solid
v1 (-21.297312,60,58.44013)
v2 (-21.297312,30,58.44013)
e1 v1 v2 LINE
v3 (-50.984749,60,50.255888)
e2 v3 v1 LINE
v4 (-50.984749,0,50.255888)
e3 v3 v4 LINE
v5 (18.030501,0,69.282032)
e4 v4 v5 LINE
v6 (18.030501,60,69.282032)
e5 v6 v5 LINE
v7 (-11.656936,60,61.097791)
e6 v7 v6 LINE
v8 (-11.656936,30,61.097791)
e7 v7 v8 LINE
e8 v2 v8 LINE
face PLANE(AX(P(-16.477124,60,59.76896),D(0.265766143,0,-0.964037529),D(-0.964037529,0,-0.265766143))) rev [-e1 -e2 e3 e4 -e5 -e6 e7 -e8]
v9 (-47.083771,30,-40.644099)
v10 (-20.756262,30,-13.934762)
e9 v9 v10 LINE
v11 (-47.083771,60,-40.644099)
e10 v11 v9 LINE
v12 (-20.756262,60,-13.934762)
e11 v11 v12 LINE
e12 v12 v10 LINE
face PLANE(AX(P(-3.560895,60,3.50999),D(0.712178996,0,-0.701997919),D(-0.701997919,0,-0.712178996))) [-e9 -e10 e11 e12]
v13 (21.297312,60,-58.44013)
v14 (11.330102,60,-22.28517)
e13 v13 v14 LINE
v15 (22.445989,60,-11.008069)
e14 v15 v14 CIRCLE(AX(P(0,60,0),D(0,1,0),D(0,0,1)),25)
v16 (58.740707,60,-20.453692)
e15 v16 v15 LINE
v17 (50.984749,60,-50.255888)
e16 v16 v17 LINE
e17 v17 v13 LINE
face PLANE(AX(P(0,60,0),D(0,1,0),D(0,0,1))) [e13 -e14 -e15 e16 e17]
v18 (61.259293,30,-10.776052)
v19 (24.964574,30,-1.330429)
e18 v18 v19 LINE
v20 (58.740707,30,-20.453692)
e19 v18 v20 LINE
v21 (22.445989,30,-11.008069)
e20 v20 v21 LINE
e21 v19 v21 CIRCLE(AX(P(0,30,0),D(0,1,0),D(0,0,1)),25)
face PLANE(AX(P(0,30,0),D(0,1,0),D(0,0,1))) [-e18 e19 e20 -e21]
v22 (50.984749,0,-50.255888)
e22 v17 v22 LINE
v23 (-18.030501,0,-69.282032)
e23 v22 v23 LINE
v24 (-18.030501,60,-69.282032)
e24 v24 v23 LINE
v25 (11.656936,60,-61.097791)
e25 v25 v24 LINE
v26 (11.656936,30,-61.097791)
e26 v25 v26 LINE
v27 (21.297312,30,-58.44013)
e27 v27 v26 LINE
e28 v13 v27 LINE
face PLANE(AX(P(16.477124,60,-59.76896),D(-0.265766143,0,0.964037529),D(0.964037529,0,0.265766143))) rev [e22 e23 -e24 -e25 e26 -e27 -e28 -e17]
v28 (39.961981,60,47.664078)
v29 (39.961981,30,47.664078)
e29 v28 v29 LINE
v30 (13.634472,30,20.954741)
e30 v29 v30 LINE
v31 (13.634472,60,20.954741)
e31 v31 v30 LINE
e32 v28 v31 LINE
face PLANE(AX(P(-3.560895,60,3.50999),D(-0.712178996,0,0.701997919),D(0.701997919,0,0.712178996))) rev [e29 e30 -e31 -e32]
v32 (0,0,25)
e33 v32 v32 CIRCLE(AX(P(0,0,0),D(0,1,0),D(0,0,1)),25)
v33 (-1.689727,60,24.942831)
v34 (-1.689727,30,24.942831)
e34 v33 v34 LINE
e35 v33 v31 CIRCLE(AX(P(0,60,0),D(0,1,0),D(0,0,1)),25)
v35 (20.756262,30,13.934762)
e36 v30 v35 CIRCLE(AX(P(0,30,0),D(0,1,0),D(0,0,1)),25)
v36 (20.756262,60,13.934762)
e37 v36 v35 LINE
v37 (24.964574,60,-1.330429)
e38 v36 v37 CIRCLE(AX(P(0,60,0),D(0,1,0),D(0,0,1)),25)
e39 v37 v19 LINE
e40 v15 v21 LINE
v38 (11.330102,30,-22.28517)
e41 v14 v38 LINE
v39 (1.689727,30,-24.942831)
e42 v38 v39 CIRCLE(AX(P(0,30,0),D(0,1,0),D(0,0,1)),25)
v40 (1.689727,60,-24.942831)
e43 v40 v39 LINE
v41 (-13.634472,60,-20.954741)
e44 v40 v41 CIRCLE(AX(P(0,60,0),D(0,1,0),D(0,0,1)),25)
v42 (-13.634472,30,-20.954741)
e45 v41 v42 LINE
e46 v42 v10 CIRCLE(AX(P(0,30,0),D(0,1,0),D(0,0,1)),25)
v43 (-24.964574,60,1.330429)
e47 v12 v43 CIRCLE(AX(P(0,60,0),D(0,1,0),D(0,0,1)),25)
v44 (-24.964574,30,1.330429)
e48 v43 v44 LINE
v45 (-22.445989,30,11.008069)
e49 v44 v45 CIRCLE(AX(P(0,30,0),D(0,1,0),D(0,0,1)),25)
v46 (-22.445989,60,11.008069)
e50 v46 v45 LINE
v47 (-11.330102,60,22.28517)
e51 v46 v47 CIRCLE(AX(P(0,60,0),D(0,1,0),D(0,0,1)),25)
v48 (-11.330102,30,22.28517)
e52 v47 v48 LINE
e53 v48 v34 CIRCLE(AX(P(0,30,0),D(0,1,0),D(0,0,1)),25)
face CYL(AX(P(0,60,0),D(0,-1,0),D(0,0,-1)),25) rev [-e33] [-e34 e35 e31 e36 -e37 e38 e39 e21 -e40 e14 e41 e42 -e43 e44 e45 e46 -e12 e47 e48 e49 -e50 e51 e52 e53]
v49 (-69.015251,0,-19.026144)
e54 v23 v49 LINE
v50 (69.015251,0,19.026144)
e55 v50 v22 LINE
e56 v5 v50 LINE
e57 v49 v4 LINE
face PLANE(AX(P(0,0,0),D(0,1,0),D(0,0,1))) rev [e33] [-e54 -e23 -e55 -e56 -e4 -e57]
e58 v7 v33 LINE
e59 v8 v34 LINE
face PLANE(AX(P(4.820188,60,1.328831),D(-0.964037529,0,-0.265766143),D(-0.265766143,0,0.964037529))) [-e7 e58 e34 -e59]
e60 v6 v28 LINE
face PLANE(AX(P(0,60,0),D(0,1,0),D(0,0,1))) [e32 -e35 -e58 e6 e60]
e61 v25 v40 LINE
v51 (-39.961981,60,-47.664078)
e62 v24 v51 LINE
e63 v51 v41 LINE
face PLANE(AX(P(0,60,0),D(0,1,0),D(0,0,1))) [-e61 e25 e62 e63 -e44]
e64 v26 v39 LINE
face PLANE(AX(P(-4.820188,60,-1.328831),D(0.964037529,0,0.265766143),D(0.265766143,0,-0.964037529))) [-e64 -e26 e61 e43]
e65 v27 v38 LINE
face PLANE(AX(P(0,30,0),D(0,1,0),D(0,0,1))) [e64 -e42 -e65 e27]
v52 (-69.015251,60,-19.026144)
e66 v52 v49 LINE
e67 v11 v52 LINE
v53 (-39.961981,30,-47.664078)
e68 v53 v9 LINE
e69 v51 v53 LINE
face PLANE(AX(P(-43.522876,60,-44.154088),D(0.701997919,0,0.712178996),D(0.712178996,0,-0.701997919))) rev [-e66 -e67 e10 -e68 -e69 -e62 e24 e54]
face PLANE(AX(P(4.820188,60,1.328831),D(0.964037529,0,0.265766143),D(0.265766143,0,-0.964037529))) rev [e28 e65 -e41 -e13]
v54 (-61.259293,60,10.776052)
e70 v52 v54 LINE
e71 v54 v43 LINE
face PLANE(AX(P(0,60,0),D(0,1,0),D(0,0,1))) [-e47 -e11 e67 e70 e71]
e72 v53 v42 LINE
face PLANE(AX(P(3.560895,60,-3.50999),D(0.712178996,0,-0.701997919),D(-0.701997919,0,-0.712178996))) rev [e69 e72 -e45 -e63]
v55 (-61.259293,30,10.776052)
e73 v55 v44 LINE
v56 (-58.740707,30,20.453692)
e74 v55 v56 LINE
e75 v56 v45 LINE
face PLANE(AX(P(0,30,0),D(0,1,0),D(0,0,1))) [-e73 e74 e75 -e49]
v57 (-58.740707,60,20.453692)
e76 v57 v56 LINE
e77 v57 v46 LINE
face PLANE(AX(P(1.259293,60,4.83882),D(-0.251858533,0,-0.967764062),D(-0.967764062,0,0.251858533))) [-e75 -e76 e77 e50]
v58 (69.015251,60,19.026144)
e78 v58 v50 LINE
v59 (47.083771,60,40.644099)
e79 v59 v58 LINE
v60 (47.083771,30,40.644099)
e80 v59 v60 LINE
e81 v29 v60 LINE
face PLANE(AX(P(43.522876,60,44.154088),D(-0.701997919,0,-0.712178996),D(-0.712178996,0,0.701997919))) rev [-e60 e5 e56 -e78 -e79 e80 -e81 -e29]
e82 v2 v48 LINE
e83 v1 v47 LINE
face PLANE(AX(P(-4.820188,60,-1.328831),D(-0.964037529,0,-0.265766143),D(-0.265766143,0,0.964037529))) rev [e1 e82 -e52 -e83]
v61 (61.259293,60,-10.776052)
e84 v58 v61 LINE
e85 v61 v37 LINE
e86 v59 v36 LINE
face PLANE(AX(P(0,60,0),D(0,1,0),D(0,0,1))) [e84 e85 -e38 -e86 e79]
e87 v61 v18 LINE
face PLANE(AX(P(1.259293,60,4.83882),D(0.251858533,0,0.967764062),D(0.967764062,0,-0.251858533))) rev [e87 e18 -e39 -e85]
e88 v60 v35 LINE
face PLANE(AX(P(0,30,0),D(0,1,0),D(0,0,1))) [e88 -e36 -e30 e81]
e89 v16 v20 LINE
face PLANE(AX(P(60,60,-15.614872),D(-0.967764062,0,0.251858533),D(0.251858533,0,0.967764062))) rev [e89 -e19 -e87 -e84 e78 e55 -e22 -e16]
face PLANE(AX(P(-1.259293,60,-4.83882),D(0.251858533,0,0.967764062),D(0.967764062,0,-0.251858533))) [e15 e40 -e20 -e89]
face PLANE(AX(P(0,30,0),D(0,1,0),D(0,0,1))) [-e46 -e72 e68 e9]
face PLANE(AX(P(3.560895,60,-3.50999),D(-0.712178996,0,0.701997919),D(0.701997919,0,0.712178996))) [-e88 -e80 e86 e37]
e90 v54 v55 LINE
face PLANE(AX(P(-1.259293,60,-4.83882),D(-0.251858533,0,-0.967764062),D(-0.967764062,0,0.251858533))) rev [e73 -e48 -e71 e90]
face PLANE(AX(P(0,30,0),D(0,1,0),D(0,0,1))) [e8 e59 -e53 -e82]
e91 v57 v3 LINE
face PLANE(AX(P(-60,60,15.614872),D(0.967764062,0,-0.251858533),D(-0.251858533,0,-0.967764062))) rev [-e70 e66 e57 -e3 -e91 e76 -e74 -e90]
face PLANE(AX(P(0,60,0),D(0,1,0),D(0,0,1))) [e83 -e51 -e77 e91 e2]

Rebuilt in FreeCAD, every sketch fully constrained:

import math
import FreeCAD as App
import Part
import Sketcher
from FreeCAD import Vector

doc = App.newDocument("Part")
params = doc.addObject("Spreadsheet::Sheet", "Params")
for row, (alias, value) in enumerate([
    ("sketch1_radius", "25 mm"),
    ("pad1_length", "60 mm"),
    ("sketch2_radius", "25 mm"),
    ("pad2_length", "60 mm"),
    ("sketch3_radius", "25 mm"),
    ("pad3_length", "60 mm"),
    ("sketch4_radius", "25 mm"),
    ("pad4_length", "60 mm"),
    ("sketch5_radius", "25 mm"),
    ("pad5_length", "60 mm"),
    ("sketch6_radius", "25 mm"),
    ("pad6_length", "60 mm"),
    ("sketch7_radius", "25 mm"),
    ("sketch7_length", "10 mm"),
    ("pad7_length", "30 mm"),
], start=1):
    params.set(f"A{row}", alias)
    params.set(f"B{row}", "=" + value)
    params.setAlias(f"B{row}", alias)

body = doc.addObject("PartDesign::Body", "Body")

# Sketch on XZ plane
sketch1 = body.newObject("Sketcher::SketchObject", "Sketch")
sketch1.AttachmentSupport = (doc.getObject("XZ_Plane"), [""])
sketch1.MapMode = "FlatFace"
sketch1.addGeometry([
    Part.LineSegment(Vector(18, 69, 0), Vector(40, 48, 0)),  # 0
    Part.LineSegment(Vector(40, 48, 0), Vector(14, 21, 0)),  # 1
    Part.ArcOfCircle(Part.Circle(Vector(0, 0, 0), Vector(0, 0, 1), 25), math.radians(57), math.radians(94)),  # 2
    Part.LineSegment(Vector(-2, 25, 0), Vector(-12, 61, 0)),  # 3
    Part.LineSegment(Vector(-12, 61, 0), Vector(18, 69, 0)),  # 4
], False)
sketch1.addConstraint([
    Sketcher.Constraint("Coincident", 0, 2, 1, 1),
    Sketcher.Constraint("Coincident", 1, 2, 2, 1),
    Sketcher.Constraint("Coincident", 2, 2, 3, 1),
    Sketcher.Constraint("Coincident", 3, 2, 4, 1),
    Sketcher.Constraint("Coincident", 4, 2, 0, 1),
    Sketcher.Constraint("Coincident", 2, 3, -1, 1),
    Sketcher.Constraint("Perpendicular", 0, 1),
    Sketcher.Constraint("Perpendicular", 3, 4),
    Sketcher.Constraint("Equal", 1, 3),
    Sketcher.Constraint("Equal", 0, 4),
    Sketcher.Constraint("Radius", 2, 25.0),
    Sketcher.Constraint("Distance", 0, 30.794898),
    Sketcher.Constraint("DistanceX", -1, 1, 4, 2, 18.030501),
    Sketcher.Constraint("DistanceX", 2, 2, 1, 2, 15.324199),
    Sketcher.Constraint("DistanceY", 2, 2, 4, 2, 44.339201),
])
sketch1.setExpression("Constraints[10]", "Params.sketch1_radius")
pad1 = body.newObject("PartDesign::Pad", "Pad")
pad1.Profile = sketch1
pad1.setExpression("Length", "Params.pad1_length")
pad1.Reversed = True
body2 = doc.addObject("PartDesign::Body", "Body001")

# Sketch on XZ plane
sketch2 = body2.newObject("Sketcher::SketchObject", "Sketch001")
sketch2.AttachmentSupport = (doc.getObject("XZ_Plane001"), [""])
sketch2.MapMode = "FlatFace"
sketch2.addGeometry([
    Part.LineSegment(Vector(-21, 58, 0), Vector(-11, 22, 0)),  # 0
    Part.ArcOfCircle(Part.Circle(Vector(0, 0, 0), Vector(0, 0, 1), 25), math.radians(117), math.radians(154)),  # 1
    Part.LineSegment(Vector(-22, 11, 0), Vector(-59, 20, 0)),  # 2
    Part.LineSegment(Vector(-59, 20, 0), Vector(-51, 50, 0)),  # 3
    Part.LineSegment(Vector(-51, 50, 0), Vector(-21, 58, 0)),  # 4
], False)
sketch2.addConstraint([
    Sketcher.Constraint("Coincident", 0, 2, 1, 1),
    Sketcher.Constraint("Coincident", 1, 2, 2, 1),
    Sketcher.Constraint("Coincident", 2, 2, 3, 1),
    Sketcher.Constraint("Coincident", 3, 2, 4, 1),
    Sketcher.Constraint("Coincident", 4, 2, 0, 1),
    Sketcher.Constraint("Coincident", 1, 3, -1, 1),
    Sketcher.Constraint("Perpendicular", 2, 3),
    Sketcher.Constraint("Perpendicular", 0, 4),
    Sketcher.Constraint("Equal", 0, 2),
    Sketcher.Constraint("Equal", 3, 4),
    Sketcher.Constraint("Radius", 1, 25.0),
    Sketcher.Constraint("Distance", 3, 30.794898),
    Sketcher.Constraint("DistanceY", 1, 2, 0, 2, 11.2771),
    Sketcher.Constraint("DistanceY", -1, 1, 0, 2, 22.28517),
    Sketcher.Constraint("DistanceX", 3, 2, -1, 1, 50.984749),
])
sketch2.setExpression("Constraints[10]", "Params.sketch2_radius")
pad2 = body2.newObject("PartDesign::Pad", "Pad001")
pad2.Profile = sketch2
pad2.setExpression("Length", "Params.pad2_length")
pad2.Reversed = True
body3 = doc.addObject("PartDesign::Body", "Body002")

# Sketch on XZ plane
sketch3 = body3.newObject("Sketcher::SketchObject", "Sketch002")
sketch3.AttachmentSupport = (doc.getObject("XZ_Plane002"), [""])
sketch3.MapMode = "FlatFace"
sketch3.addGeometry([
    Part.ArcOfCircle(Part.Circle(Vector(0, 0, 0), Vector(0, 0, 1), 25), math.radians(177), math.radians(214)),  # 0
    Part.LineSegment(Vector(-21, -14, 0), Vector(-47, -41, 0)),  # 1
    Part.LineSegment(Vector(-47, -41, 0), Vector(-69, -19, 0)),  # 2
    Part.LineSegment(Vector(-69, -19, 0), Vector(-61, 11, 0)),  # 3
    Part.LineSegment(Vector(-61, 11, 0), Vector(-25, 1, 0)),  # 4
], False)
sketch3.addConstraint([
    Sketcher.Constraint("Coincident", 0, 2, 1, 1),
    Sketcher.Constraint("Coincident", 1, 2, 2, 1),
    Sketcher.Constraint("Coincident", 2, 2, 3, 1),
    Sketcher.Constraint("Coincident", 3, 2, 4, 1),
    Sketcher.Constraint("Coincident", 4, 2, 0, 1),
    Sketcher.Constraint("Coincident", 0, 3, -1, 1),
    Sketcher.Constraint("Perpendicular", 1, 2),
    Sketcher.Constraint("Perpendicular", 3, 4),
    Sketcher.Constraint("Equal", 2, 3),
    Sketcher.Constraint("Equal", 1, 4),
    Sketcher.Constraint("Radius", 0, 25.0),
    Sketcher.Constraint("Distance", 2, 30.794898),
    Sketcher.Constraint("DistanceY", 1, 2, -1, 1, 40.644099),
    Sketcher.Constraint("DistanceX", 0, 2, -1, 1, 20.756262),
    Sketcher.Constraint("DistanceX", 1, 2, -1, 1, 47.083771),
])
sketch3.setExpression("Constraints[10]", "Params.sketch3_radius")
pad3 = body3.newObject("PartDesign::Pad", "Pad002")
pad3.Profile = sketch3
pad3.setExpression("Length", "Params.pad3_length")
pad3.Reversed = True
body4 = doc.addObject("PartDesign::Body", "Body003")

# Sketch on XZ plane
sketch4 = body4.newObject("Sketcher::SketchObject", "Sketch003")
sketch4.AttachmentSupport = (doc.getObject("XZ_Plane003"), [""])
sketch4.MapMode = "FlatFace"
sketch4.addGeometry([
    Part.ArcOfCircle(Part.Circle(Vector(0, 0, 0), Vector(0, 0, 1), 25), math.radians(-123), math.radians(-86)),  # 0
    Part.LineSegment(Vector(2, -25, 0), Vector(12, -61, 0)),  # 1
    Part.LineSegment(Vector(12, -61, 0), Vector(-18, -69, 0)),  # 2
    Part.LineSegment(Vector(-18, -69, 0), Vector(-40, -48, 0)),  # 3
    Part.LineSegment(Vector(-40, -48, 0), Vector(-14, -21, 0)),  # 4
], False)
sketch4.addConstraint([
    Sketcher.Constraint("Coincident", 0, 2, 1, 1),
    Sketcher.Constraint("Coincident", 1, 2, 2, 1),
    Sketcher.Constraint("Coincident", 2, 2, 3, 1),
    Sketcher.Constraint("Coincident", 3, 2, 4, 1),
    Sketcher.Constraint("Coincident", 4, 2, 0, 1),
    Sketcher.Constraint("Coincident", 0, 3, -1, 1),
    Sketcher.Constraint("Perpendicular", 1, 2),
    Sketcher.Constraint("Perpendicular", 3, 4),
    Sketcher.Constraint("Equal", 2, 3),
    Sketcher.Constraint("Equal", 1, 4),
    Sketcher.Constraint("Radius", 0, 25.0),
    Sketcher.Constraint("Distance", 2, 30.794898),
    Sketcher.Constraint("DistanceX", 2, 2, -1, 1, 18.030501),
    Sketcher.Constraint("DistanceY", 2, 2, 0, 2, 44.339201),
    Sketcher.Constraint("DistanceX", 4, 2, 0, 2, 15.324199),
])
sketch4.setExpression("Constraints[10]", "Params.sketch4_radius")
pad4 = body4.newObject("PartDesign::Pad", "Pad003")
pad4.Profile = sketch4
pad4.setExpression("Length", "Params.pad4_length")
pad4.Reversed = True
body5 = doc.addObject("PartDesign::Body", "Body004")

# Sketch on XZ plane
sketch5 = body5.newObject("Sketcher::SketchObject", "Sketch004")
sketch5.AttachmentSupport = (doc.getObject("XZ_Plane004"), [""])
sketch5.MapMode = "FlatFace"
sketch5.addGeometry([
    Part.LineSegment(Vector(22, -11, 0), Vector(59, -20, 0)),  # 0
    Part.LineSegment(Vector(59, -20, 0), Vector(51, -50, 0)),  # 1
    Part.LineSegment(Vector(51, -50, 0), Vector(21, -58, 0)),  # 2
    Part.LineSegment(Vector(21, -58, 0), Vector(11, -22, 0)),  # 3
    Part.ArcOfCircle(Part.Circle(Vector(0, 0, 0), Vector(0, 0, 1), 25), math.radians(-63), math.radians(-26)),  # 4
], False)
sketch5.addConstraint([
    Sketcher.Constraint("Coincident", 0, 2, 1, 1),
    Sketcher.Constraint("Coincident", 1, 2, 2, 1),
    Sketcher.Constraint("Coincident", 2, 2, 3, 1),
    Sketcher.Constraint("Coincident", 3, 2, 4, 1),
    Sketcher.Constraint("Coincident", 4, 2, 0, 1),
    Sketcher.Constraint("Coincident", 4, 3, -1, 1),
    Sketcher.Constraint("Perpendicular", 0, 1),
    Sketcher.Constraint("Perpendicular", 2, 3),
    Sketcher.Constraint("Equal", 1, 2),
    Sketcher.Constraint("Equal", 0, 3),
    Sketcher.Constraint("Radius", 4, 25.0),
    Sketcher.Constraint("Distance", 1, 30.794898),
    Sketcher.Constraint("DistanceY", 3, 2, 4, 2, 11.2771),
    Sketcher.Constraint("DistanceX", -1, 1, 1, 2, 50.984749),
    Sketcher.Constraint("DistanceY", 1, 2, -1, 1, 50.255888),
])
sketch5.setExpression("Constraints[10]", "Params.sketch5_radius")
pad5 = body5.newObject("PartDesign::Pad", "Pad004")
pad5.Profile = sketch5
pad5.setExpression("Length", "Params.pad5_length")
pad5.Reversed = True
body6 = doc.addObject("PartDesign::Body", "Body005")

# Sketch on XZ plane
sketch6 = body6.newObject("Sketcher::SketchObject", "Sketch005")
sketch6.AttachmentSupport = (doc.getObject("XZ_Plane005"), [""])
sketch6.MapMode = "FlatFace"
sketch6.addGeometry([
    Part.LineSegment(Vector(69, 19, 0), Vector(61.3, -10.8, 0)),  # 0
    Part.LineSegment(Vector(61.3, -10.8, 0), Vector(25, -1.3, 0)),  # 1
    Part.ArcOfCircle(Part.Circle(Vector(0, 0, 0), Vector(0, 0, 1), 25), math.radians(-3.05), math.radians(0)),  # 2
    Part.ArcOfCircle(Part.Circle(Vector(0, 0, 0), Vector(0, 0, 1), 25), math.radians(0), math.radians(34)),  # 3
    Part.LineSegment(Vector(20.8, 13.9, 0), Vector(47.1, 40.6, 0)),  # 4
    Part.LineSegment(Vector(47.1, 40.6, 0), Vector(69, 19, 0)),  # 5
], False)
sketch6.addConstraint([
    Sketcher.Constraint("Coincident", 0, 2, 1, 1),
    Sketcher.Constraint("Coincident", 1, 2, 2, 1),
    Sketcher.Constraint("Tangent", 2, 2, 3, 1),
    Sketcher.Constraint("Coincident", 3, 2, 4, 1),
    Sketcher.Constraint("Coincident", 4, 2, 5, 1),
    Sketcher.Constraint("Coincident", 5, 2, 0, 1),
    Sketcher.Constraint("Coincident", 2, 3, -1, 1),
    Sketcher.Constraint("Equal", 2, 3),
    Sketcher.Constraint("PointOnObject", 2, 2, -1),
    Sketcher.Constraint("Perpendicular", 0, 1),
    Sketcher.Constraint("Perpendicular", 4, 5),
    Sketcher.Constraint("Equal", 1, 4),
    Sketcher.Constraint("Equal", 0, 5),
    Sketcher.Constraint("Radius", 2, 25.0),
    Sketcher.Constraint("Distance", 0, 30.794898),
    Sketcher.Constraint("DistanceY", -1, 1, 4, 2, 40.644099),
    Sketcher.Constraint("DistanceY", 0, 2, -1, 1, 10.776052),
    Sketcher.Constraint("DistanceY", 1, 2, -1, 1, 1.330429),
])
sketch6.setExpression("Constraints[13]", "Params.sketch6_radius")
pad6 = body6.newObject("PartDesign::Pad", "Pad005")
pad6.Profile = sketch6
pad6.setExpression("Length", "Params.pad6_length")
pad6.Reversed = True
body.AllowCompound = True
doc.recompute()

boolean = body.newObject("PartDesign::Boolean", "Boolean")
boolean.Type = "Fuse"
boolean.addObjects([body2])
doc.recompute()

boolean2 = body.newObject("PartDesign::Boolean", "Boolean001")
boolean2.Type = "Fuse"
boolean2.addObjects([body3])
doc.recompute()

boolean3 = body.newObject("PartDesign::Boolean", "Boolean002")
boolean3.Type = "Fuse"
boolean3.addObjects([body4])
doc.recompute()

boolean4 = body.newObject("PartDesign::Boolean", "Boolean003")
boolean4.Type = "Fuse"
boolean4.addObjects([body5])
doc.recompute()

boolean5 = body.newObject("PartDesign::Boolean", "Boolean004")
boolean5.Type = "Fuse"
boolean5.addObjects([body6])

# Sketch on XZ plane
sketch7 = body.newObject("Sketcher::SketchObject", "Sketch006")
sketch7.AttachmentSupport = (doc.getObject("XZ_Plane"), [""])
sketch7.MapMode = "FlatFace"
sketch7.addGeometry([
    Part.LineSegment(Vector(-12, 61, 0), Vector(-2, 25, 0)),  # 0
    Part.ArcOfCircle(Part.Circle(Vector(0, 0, 0), Vector(0, 0, 1), 25), math.radians(94), math.radians(117)),  # 1
    Part.LineSegment(Vector(-11, 22, 0), Vector(-21, 58, 0)),  # 2
    Part.LineSegment(Vector(-21, 58, 0), Vector(-12, 61, 0)),  # 3
    Part.LineSegment(Vector(40, 48, 0), Vector(47, 41, 0)),  # 4
    Part.LineSegment(Vector(47, 41, 0), Vector(21, 14, 0)),  # 5
    Part.ArcOfCircle(Part.Circle(Vector(0, 0, 0), Vector(0, 0, 1), 25), math.radians(34), math.radians(57)),  # 6
    Part.LineSegment(Vector(14, 21, 0), Vector(40, 48, 0)),  # 7
    Part.LineSegment(Vector(61, -11, 0), Vector(59, -20, 0)),  # 8
    Part.LineSegment(Vector(59, -20, 0), Vector(22, -11, 0)),  # 9
    Part.ArcOfCircle(Part.Circle(Vector(0, 0, 0), Vector(0, 0, 1), 25), math.radians(-26), math.radians(-3)),  # 10
    Part.LineSegment(Vector(25, -1, 0), Vector(61, -11, 0)),  # 11
    Part.ArcOfCircle(Part.Circle(Vector(0, 0, 0), Vector(0, 0, 1), 25), math.radians(-86), math.radians(-63)),  # 12
    Part.LineSegment(Vector(11, -22, 0), Vector(21, -58, 0)),  # 13
    Part.LineSegment(Vector(21, -58, 0), Vector(12, -61, 0)),  # 14
    Part.LineSegment(Vector(12, -61, 0), Vector(2, -25, 0)),  # 15
    Part.ArcOfCircle(Part.Circle(Vector(0, 0, 0), Vector(0, 0, 1), 25), math.radians(-146), math.radians(-123)),  # 16
    Part.LineSegment(Vector(-14, -21, 0), Vector(-40, -48, 0)),  # 17
    Part.LineSegment(Vector(-40, -48, 0), Vector(-47, -41, 0)),  # 18
    Part.LineSegment(Vector(-47, -41, 0), Vector(-21, -14, 0)),  # 19
    Part.ArcOfCircle(Part.Circle(Vector(0, 0, 0), Vector(0, 0, 1), 25), math.radians(154), math.radians(177)),  # 20
    Part.LineSegment(Vector(-25, 1, 0), Vector(-61, 11, 0)),  # 21
    Part.LineSegment(Vector(-61, 11, 0), Vector(-59, 20, 0)),  # 22
    Part.LineSegment(Vector(-59, 20, 0), Vector(-22, 11, 0)),  # 23
], False)
sketch7.addConstraint([
    Sketcher.Constraint("Coincident", 0, 2, 1, 1),
    Sketcher.Constraint("Coincident", 1, 2, 2, 1),
    Sketcher.Constraint("Coincident", 2, 2, 3, 1),
    Sketcher.Constraint("Coincident", 3, 2, 0, 1),
    Sketcher.Constraint("Coincident", 4, 2, 5, 1),
    Sketcher.Constraint("Coincident", 5, 2, 6, 1),
    Sketcher.Constraint("Coincident", 6, 2, 7, 1),
    Sketcher.Constraint("Coincident", 7, 2, 4, 1),
    Sketcher.Constraint("Coincident", 8, 2, 9, 1),
    Sketcher.Constraint("Coincident", 9, 2, 10, 1),
    Sketcher.Constraint("Coincident", 10, 2, 11, 1),
    Sketcher.Constraint("Coincident", 11, 2, 8, 1),
    Sketcher.Constraint("Coincident", 12, 2, 13, 1),
    Sketcher.Constraint("Coincident", 13, 2, 14, 1),
    Sketcher.Constraint("Coincident", 14, 2, 15, 1),
    Sketcher.Constraint("Coincident", 15, 2, 12, 1),
    Sketcher.Constraint("Coincident", 16, 2, 17, 1),
    Sketcher.Constraint("Coincident", 17, 2, 18, 1),
    Sketcher.Constraint("Coincident", 18, 2, 19, 1),
    Sketcher.Constraint("Coincident", 19, 2, 16, 1),
    Sketcher.Constraint("Coincident", 20, 2, 21, 1),
    Sketcher.Constraint("Coincident", 21, 2, 22, 1),
    Sketcher.Constraint("Coincident", 22, 2, 23, 1),
    Sketcher.Constraint("Coincident", 23, 2, 20, 1),
    Sketcher.Constraint("Coincident", 1, 3, -1, 1),
    Sketcher.Constraint("Coincident", 6, 3, -1, 1),
    Sketcher.Constraint("Coincident", 10, 3, -1, 1),
    Sketcher.Constraint("Coincident", 12, 3, -1, 1),
    Sketcher.Constraint("Coincident", 16, 3, -1, 1),
    Sketcher.Constraint("Coincident", 20, 3, -1, 1),
    Sketcher.Constraint("Equal", 1, 6),
    Sketcher.Constraint("Equal", 6, 10),
    Sketcher.Constraint("Equal", 10, 12),
    Sketcher.Constraint("Equal", 12, 16),
    Sketcher.Constraint("Equal", 16, 20),
    Sketcher.Constraint("Symmetric", 2, 2, 13, 2, -1, 1),
    Sketcher.Constraint("Symmetric", 3, 2, 14, 2, -1, 1),
    Sketcher.Constraint("Symmetric", 7, 2, 17, 2, -1, 1),
    Sketcher.Constraint("Symmetric", 4, 2, 18, 2, -1, 1),
    Sketcher.Constraint("Symmetric", 11, 2, 21, 2, -1, 1),
    Sketcher.Constraint("Symmetric", 8, 2, 22, 2, -1, 1),
    Sketcher.Constraint("Parallel", 0, 2),
    Sketcher.Constraint("Perpendicular", 2, 3),
    Sketcher.Constraint("Perpendicular", 4, 5),
    Sketcher.Constraint("Parallel", 5, 7),
    Sketcher.Constraint("Perpendicular", 8, 9),
    Sketcher.Constraint("Parallel", 9, 11),
    Sketcher.Constraint("Perpendicular", 3, 13),
    Sketcher.Constraint("Perpendicular", 14, 15),
    Sketcher.Constraint("Parallel", 7, 17),
    Sketcher.Constraint("Perpendicular", 18, 19),
    Sketcher.Constraint("Parallel", 11, 21),
    Sketcher.Constraint("Perpendicular", 22, 23),
    Sketcher.Constraint("Equal", 0, 2),
    Sketcher.Constraint("Equal", 3, 4),
    Sketcher.Constraint("Equal", 2, 5),
    Sketcher.Constraint("Equal", 5, 7),
    Sketcher.Constraint("Equal", 4, 8),
    Sketcher.Constraint("Equal", 7, 9),
    Sketcher.Constraint("Equal", 9, 11),
    Sketcher.Constraint("Radius", 1, 25.0),
    Sketcher.Constraint("Distance", 3, 10.0),
    Sketcher.Constraint("DistanceY", -1, 1, 4, 2, 40.644099),
    Sketcher.Constraint("DistanceY", 0, 2, 2, 2, 33.497298),
    Sketcher.Constraint("DistanceX", 0, 2, 6, 2, 15.324199),
    Sketcher.Constraint("DistanceY", 12, 2, 9, 2, 11.2771),
])
sketch7.setExpression("Constraints[60]", "Params.sketch7_radius")
sketch7.setExpression("Constraints[61]", "Params.sketch7_length")
pad7 = body.newObject("PartDesign::Pad", "Pad006")
pad7.Profile = sketch7
pad7.setExpression("Length", "Params.pad7_length")
pad7.Reversed = True

doc.recompute()
